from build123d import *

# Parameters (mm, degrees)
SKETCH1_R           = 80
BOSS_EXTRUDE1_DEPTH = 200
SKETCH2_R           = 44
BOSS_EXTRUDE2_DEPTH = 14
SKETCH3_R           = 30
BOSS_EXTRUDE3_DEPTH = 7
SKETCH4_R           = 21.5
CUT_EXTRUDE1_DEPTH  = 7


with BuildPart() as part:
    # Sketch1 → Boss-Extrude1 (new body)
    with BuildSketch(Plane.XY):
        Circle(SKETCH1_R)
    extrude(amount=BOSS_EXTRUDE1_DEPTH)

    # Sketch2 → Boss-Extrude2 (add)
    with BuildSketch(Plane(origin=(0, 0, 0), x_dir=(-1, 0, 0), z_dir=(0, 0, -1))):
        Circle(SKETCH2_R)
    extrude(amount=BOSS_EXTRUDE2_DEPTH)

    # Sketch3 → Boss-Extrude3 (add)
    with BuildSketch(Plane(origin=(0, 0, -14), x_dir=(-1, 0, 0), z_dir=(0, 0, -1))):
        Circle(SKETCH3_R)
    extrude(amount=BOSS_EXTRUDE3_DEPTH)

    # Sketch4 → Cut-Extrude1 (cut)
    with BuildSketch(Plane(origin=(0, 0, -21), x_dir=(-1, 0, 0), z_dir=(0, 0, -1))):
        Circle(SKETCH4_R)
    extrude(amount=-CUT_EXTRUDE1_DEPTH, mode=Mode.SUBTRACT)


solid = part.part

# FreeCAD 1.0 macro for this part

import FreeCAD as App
import Part
import Sketcher

doc = App.newDocument("Part")
body = doc.addObject("PartDesign::Body", "Body")

# Sketch on XY plane
sketch1 = body.newObject("Sketcher::SketchObject", "Sketch")
sketch1.AttachmentSupport = (doc.getObject("XY_Plane"), [""])
sketch1.MapMode = "FlatFace"
sketch1.addGeometry(Part.Circle(App.Vector(0, 0, 0), App.Vector(0, 0, 1), 80), False)
sketch1.addConstraint(Sketcher.Constraint("Coincident", 0, 3, -1, 1))
sketch1.addConstraint(Sketcher.Constraint("Diameter", 0, 160.0))
pad1 = body.newObject("PartDesign::Pad", "Pad")
pad1.Profile = sketch1
pad1.Length = 200

# Sketch on XY plane
sketch2 = body.newObject("Sketcher::SketchObject", "Sketch001")
sketch2.AttachmentSupport = (doc.getObject("XY_Plane"), [""])
sketch2.MapMode = "FlatFace"
sketch2.addGeometry(Part.Circle(App.Vector(0, 0, 0), App.Vector(0, 0, 1), 44), False)
sketch2.addConstraint(Sketcher.Constraint("Coincident", 0, 3, -1, 1))
sketch2.addConstraint(Sketcher.Constraint("Diameter", 0, 88.0))
pad2 = body.newObject("PartDesign::Pad", "Pad001")
pad2.Profile = sketch2
pad2.Length = 14
pad2.Reversed = True

# Sketch on XY plane
sketch3 = body.newObject("Sketcher::SketchObject", "Sketch002")
sketch3.AttachmentSupport = (doc.getObject("XY_Plane"), [""])
sketch3.MapMode = "FlatFace"
sketch3.AttachmentOffset = App.Placement(App.Vector(0, 0, -14), App.Rotation())
sketch3.addGeometry(Part.Circle(App.Vector(0, 0, 0), App.Vector(0, 0, 1), 30), False)
sketch3.addConstraint(Sketcher.Constraint("Coincident", 0, 3, -1, 1))
sketch3.addConstraint(Sketcher.Constraint("Diameter", 0, 60.0))
pad3 = body.newObject("PartDesign::Pad", "Pad002")
pad3.Profile = sketch3
pad3.Length = 7
pad3.Reversed = True

# Sketch on XY plane
sketch4 = body.newObject("Sketcher::SketchObject", "Sketch003")
sketch4.AttachmentSupport = (doc.getObject("XY_Plane"), [""])
sketch4.MapMode = "FlatFace"
sketch4.AttachmentOffset = App.Placement(App.Vector(0, 0, -21), App.Rotation())
sketch4.addGeometry(Part.Circle(App.Vector(0, 0, 0), App.Vector(0, 0, 1), 22), False)
sketch4.addConstraint(Sketcher.Constraint("Coincident", 0, 3, -1, 1))
sketch4.addConstraint(Sketcher.Constraint("Diameter", 0, 43.0))
pocket1 = body.newObject("PartDesign::Pocket", "Pocket")
pocket1.Profile = sketch4
pocket1.Length = 7
pocket1.Reversed = True

doc.recompute()
